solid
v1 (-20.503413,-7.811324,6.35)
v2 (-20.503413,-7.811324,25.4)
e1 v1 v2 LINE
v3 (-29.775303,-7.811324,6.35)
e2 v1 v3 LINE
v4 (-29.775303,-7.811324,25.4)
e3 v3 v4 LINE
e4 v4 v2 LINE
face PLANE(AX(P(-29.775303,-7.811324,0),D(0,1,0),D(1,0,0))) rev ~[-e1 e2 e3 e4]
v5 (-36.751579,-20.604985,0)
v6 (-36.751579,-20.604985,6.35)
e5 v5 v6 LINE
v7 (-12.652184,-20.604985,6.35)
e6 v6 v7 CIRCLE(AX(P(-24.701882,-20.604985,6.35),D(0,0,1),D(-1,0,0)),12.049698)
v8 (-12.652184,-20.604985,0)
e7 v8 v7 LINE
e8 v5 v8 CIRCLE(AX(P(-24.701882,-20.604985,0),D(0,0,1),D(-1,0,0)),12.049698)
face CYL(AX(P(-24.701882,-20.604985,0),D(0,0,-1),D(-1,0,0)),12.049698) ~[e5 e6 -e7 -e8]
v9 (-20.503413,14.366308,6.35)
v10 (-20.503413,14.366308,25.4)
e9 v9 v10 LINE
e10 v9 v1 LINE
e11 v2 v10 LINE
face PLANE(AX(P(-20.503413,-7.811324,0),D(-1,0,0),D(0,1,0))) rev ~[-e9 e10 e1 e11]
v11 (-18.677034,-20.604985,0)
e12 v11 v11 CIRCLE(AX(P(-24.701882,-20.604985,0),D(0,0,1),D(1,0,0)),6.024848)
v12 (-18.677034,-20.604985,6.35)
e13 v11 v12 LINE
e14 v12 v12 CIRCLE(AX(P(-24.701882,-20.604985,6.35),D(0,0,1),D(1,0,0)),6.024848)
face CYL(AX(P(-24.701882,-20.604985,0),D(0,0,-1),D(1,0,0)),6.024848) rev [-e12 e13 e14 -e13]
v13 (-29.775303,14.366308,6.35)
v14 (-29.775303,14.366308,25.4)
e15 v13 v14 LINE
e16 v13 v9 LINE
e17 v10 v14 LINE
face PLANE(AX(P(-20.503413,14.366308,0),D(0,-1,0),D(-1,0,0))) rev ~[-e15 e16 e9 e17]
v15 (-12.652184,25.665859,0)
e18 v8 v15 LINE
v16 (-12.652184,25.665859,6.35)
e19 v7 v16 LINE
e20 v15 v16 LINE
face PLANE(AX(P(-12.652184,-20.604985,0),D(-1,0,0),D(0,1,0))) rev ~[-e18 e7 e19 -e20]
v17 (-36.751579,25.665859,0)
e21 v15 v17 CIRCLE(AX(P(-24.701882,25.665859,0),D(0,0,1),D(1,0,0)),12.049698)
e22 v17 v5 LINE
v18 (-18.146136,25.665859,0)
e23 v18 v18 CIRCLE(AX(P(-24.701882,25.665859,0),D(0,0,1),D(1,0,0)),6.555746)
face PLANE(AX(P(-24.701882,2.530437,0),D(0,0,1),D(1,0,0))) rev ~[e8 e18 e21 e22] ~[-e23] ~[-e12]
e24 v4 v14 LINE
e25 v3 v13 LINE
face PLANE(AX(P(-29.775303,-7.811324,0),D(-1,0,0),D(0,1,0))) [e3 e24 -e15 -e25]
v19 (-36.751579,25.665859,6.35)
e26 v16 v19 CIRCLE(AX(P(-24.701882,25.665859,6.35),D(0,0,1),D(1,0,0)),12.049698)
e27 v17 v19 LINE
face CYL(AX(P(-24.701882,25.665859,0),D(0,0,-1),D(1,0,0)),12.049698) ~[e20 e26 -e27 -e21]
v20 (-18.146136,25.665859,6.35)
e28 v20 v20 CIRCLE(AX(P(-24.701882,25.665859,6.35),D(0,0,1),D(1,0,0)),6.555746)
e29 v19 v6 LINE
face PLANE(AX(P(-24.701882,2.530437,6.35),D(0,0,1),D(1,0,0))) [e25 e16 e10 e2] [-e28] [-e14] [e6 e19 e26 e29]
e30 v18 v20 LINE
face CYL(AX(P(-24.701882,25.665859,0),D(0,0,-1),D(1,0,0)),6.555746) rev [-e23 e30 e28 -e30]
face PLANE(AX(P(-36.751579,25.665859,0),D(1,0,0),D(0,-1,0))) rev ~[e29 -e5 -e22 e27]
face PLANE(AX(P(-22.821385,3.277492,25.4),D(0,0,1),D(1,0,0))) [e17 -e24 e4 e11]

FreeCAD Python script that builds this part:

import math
import FreeCAD as App
import Part
import Sketcher
Q = App.Units.Quantity


def add_polygon(sketch, points):
    """Adds a closed chain of lines whose ends are joined by coincident constraints."""
    first, n = sketch.GeometryCount, len(points)
    for a, b in zip(points, points[1:] + points[:1]):
        sketch.addGeometry(Part.LineSegment(App.Vector(*a, 0), App.Vector(*b, 0)), False)
    for i in range(n):
        sketch.addConstraint(Sketcher.Constraint("Coincident", first + i, 2, first + (i + 1) % n, 1))

doc = App.newDocument("Part")
body = doc.addObject("PartDesign::Body", "Body")

sketch1 = doc.addObject("Sketcher::SketchObject", "Sketch")
body.addObject(sketch1)
sketch1.AttachmentSupport = (doc.XY_Plane, [""])
sketch1.MapMode = "FlatFace"
sketch1.addGeometry(Part.ArcOfCircle(Part.Circle(App.Vector(-25, 26, 0), App.Vector(0, 0, 1), 12), math.radians(0), math.radians(180)), False)
sketch1.addGeometry(Part.LineSegment(App.Vector(-37, 26, 0), App.Vector(-37, -21, 0)), False)
sketch1.addGeometry(Part.ArcOfCircle(Part.Circle(App.Vector(-25, -21, 0), App.Vector(0, 0, 1), 12), math.radians(180), math.radians(360)), False)
sketch1.addGeometry(Part.LineSegment(App.Vector(-13, -21, 0), App.Vector(-13, 26, 0)), False)
sketch1.addGeometry(Part.Circle(App.Vector(-25, -21, 0), App.Vector(0, 0, 1), 6), False)
add_polygon(sketch1, [(-30, 14), (-21, 14), (-21, -8), (-30, -8)])
sketch1.addGeometry(Part.Circle(App.Vector(-25, 26, 0), App.Vector(0, 0, 1), 7), False)
sketch1.addConstraint(Sketcher.Constraint("Tangent", 0, 2, 1, 1))
sketch1.addConstraint(Sketcher.Constraint("Tangent", 1, 2, 2, 1))
sketch1.addConstraint(Sketcher.Constraint("Tangent", 2, 2, 3, 1))
sketch1.addConstraint(Sketcher.Constraint("Tangent", 3, 2, 0, 1))
sketch1.addConstraint(Sketcher.Constraint("Vertical", 1))
sketch1.addConstraint(Sketcher.Constraint("Vertical", 3))
sketch1.addConstraint(Sketcher.Constraint("Horizontal", 5))
sketch1.addConstraint(Sketcher.Constraint("Vertical", 6))
sketch1.addConstraint(Sketcher.Constraint("Horizontal", 7))
sketch1.addConstraint(Sketcher.Constraint("Vertical", 8))
sketch1.addConstraint(Sketcher.Constraint("Coincident", 4, 3, 2, 3))
sketch1.addConstraint(Sketcher.Constraint("Coincident", 9, 3, 0, 3))
sketch1.addConstraint(Sketcher.Constraint("Diameter", 9, 13.111491))
sketch1.addConstraint(Sketcher.Constraint("Diameter", 4, 12.049696))
sketch1.addConstraint(Sketcher.Constraint("Radius", 0, 12.049698))
sketch1.addConstraint(Sketcher.Constraint("DistanceX", 5, 1, 5, 2, 9.27189))
sketch1.addConstraint(Sketcher.Constraint("DistanceY", 6, 2, 6, 1, 22.177632))
sketch1.addConstraint(Sketcher.Constraint("DistanceY", 1, 2, 1, 1, 46.270844))
sketch1.addConstraint(Sketcher.Constraint("DistanceX", 0, 3, -1, 1, 24.701882))
sketch1.addConstraint(Sketcher.Constraint("DistanceY", -1, 1, 0, 3, 25.665859))
sketch1.addConstraint(Sketcher.Constraint("DistanceY", -1, 1, 5, 2, 14.366308))
sketch1.addConstraint(Sketcher.Constraint("DistanceX", 0, 3, 5, 2, 4.198469))
pad1 = doc.addObject("PartDesign::Pad", "Pad")
body.addObject(pad1)
pad1.Profile = sketch1
pad1.Length = Q("0.25 in")

sketch2 = doc.addObject("Sketcher::SketchObject", "Sketch001")
body.addObject(sketch2)
sketch2.AttachmentSupport = (doc.XY_Plane, [""])
sketch2.MapMode = "FlatFace"
add_polygon(sketch2, [(-21, -8), (-21, 14), (-30, 14), (-30, -8)])
sketch2.addConstraint(Sketcher.Constraint("Vertical", 0))
sketch2.addConstraint(Sketcher.Constraint("Horizontal", 1))
sketch2.addConstraint(Sketcher.Constraint("Vertical", 2))
sketch2.addConstraint(Sketcher.Constraint("Horizontal", 3))
sketch2.addConstraint(Sketcher.Constraint("DistanceX", 1, 2, 1, 1, 9.27189))
sketch2.addConstraint(Sketcher.Constraint("DistanceY", 0, 1, 0, 2, 22.177632))
sketch2.addConstraint(Sketcher.Constraint("DistanceY", -1, 1, 0, 2, 14.366308))
sketch2.addConstraint(Sketcher.Constraint("DistanceX", 0, 2, -1, 1, 20.503413))
pad2 = doc.addObject("PartDesign::Pad", "Pad001")
body.addObject(pad2)
pad2.Profile = sketch2
pad2.Length = Q("1 in")

doc.recompute()
